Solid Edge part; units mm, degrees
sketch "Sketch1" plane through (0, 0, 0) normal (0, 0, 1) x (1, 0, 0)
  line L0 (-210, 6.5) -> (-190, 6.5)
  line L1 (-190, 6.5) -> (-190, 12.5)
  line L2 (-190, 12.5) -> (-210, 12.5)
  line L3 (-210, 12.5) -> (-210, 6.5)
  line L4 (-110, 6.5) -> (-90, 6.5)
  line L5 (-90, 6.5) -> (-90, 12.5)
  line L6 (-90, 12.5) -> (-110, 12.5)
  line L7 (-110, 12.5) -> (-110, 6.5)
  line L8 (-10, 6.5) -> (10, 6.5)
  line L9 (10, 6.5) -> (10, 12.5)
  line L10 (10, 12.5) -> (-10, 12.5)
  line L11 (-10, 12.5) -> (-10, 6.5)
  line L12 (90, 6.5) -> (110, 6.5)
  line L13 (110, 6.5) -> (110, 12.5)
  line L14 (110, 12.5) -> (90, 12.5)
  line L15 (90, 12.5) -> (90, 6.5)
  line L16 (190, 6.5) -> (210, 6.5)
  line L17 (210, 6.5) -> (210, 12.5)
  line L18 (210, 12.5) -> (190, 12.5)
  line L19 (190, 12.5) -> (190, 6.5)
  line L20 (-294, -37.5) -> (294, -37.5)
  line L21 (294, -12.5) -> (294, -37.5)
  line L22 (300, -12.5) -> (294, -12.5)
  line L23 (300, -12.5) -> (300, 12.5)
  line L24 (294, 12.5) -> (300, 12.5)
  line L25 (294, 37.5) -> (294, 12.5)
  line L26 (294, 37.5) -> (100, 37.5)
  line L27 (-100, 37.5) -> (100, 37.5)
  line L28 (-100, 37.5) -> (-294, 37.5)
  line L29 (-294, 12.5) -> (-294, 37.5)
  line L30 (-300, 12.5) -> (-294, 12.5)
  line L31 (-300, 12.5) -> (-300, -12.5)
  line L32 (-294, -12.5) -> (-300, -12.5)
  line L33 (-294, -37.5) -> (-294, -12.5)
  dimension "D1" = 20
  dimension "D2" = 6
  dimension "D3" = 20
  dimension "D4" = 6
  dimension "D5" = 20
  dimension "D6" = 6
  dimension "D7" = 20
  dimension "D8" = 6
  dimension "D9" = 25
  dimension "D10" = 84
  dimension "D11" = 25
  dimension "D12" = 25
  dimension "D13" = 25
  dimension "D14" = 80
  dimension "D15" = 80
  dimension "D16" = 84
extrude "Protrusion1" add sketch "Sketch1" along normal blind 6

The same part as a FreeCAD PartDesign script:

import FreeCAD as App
import Part
import Sketcher
from FreeCAD import Vector

doc = App.newDocument("Part")
body = doc.addObject("PartDesign::Body", "Body")

# Sketch on XY plane
sketch1 = body.newObject("Sketcher::SketchObject", "Sketch")
sketch1.AttachmentSupport = (doc.getObject("XY_Plane"), [""])
sketch1.MapMode = "FlatFace"
sketch1.addGeometry([
    Part.LineSegment(Vector(-294, -12.5, 0), Vector(-294, -37.5, 0)),  # 0
    Part.LineSegment(Vector(-294, -37.5, 0), Vector(294, -37.5, 0)),  # 1
    Part.LineSegment(Vector(294, -37.5, 0), Vector(294, -12.5, 0)),  # 2
    Part.LineSegment(Vector(294, -12.5, 0), Vector(300, -12.5, 0)),  # 3
    Part.LineSegment(Vector(300, -12.5, 0), Vector(300, 12.5, 0)),  # 4
    Part.LineSegment(Vector(300, 12.5, 0), Vector(294, 12.5, 0)),  # 5
    Part.LineSegment(Vector(294, 12.5, 0), Vector(294, 37.5, 0)),  # 6
    Part.LineSegment(Vector(294, 37.5, 0), Vector(-294, 37.5, 0)),  # 7
    Part.LineSegment(Vector(-294, 37.5, 0), Vector(-294, 12.5, 0)),  # 8
    Part.LineSegment(Vector(-294, 12.5, 0), Vector(-300, 12.5, 0)),  # 9
    Part.LineSegment(Vector(-300, 12.5, 0), Vector(-300, -12.5, 0)),  # 10
    Part.LineSegment(Vector(-300, -12.5, 0), Vector(-294, -12.5, 0)),  # 11
    Part.LineSegment(Vector(-190, 6.5, 0), Vector(-210, 6.5, 0)),  # 12
    Part.LineSegment(Vector(-210, 6.5, 0), Vector(-210, 12.5, 0)),  # 13
    Part.LineSegment(Vector(-210, 12.5, 0), Vector(-190, 12.5, 0)),  # 14
    Part.LineSegment(Vector(-190, 12.5, 0), Vector(-190, 6.5, 0)),  # 15
    Part.LineSegment(Vector(-90, 6.5, 0), Vector(-110, 6.5, 0)),  # 16
    Part.LineSegment(Vector(-110, 6.5, 0), Vector(-110, 12.5, 0)),  # 17
    Part.LineSegment(Vector(-110, 12.5, 0), Vector(-90, 12.5, 0)),  # 18
    Part.LineSegment(Vector(-90, 12.5, 0), Vector(-90, 6.5, 0)),  # 19
    Part.LineSegment(Vector(10, 6.5, 0), Vector(-10, 6.5, 0)),  # 20
    Part.LineSegment(Vector(-10, 6.5, 0), Vector(-10, 12.5, 0)),  # 21
    Part.LineSegment(Vector(-10, 12.5, 0), Vector(10, 12.5, 0)),  # 22
    Part.LineSegment(Vector(10, 12.5, 0), Vector(10, 6.5, 0)),  # 23
    Part.LineSegment(Vector(110, 6.5, 0), Vector(90, 6.5, 0)),  # 24
    Part.LineSegment(Vector(90, 6.5, 0), Vector(90, 12.5, 0)),  # 25
    Part.LineSegment(Vector(90, 12.5, 0), Vector(110, 12.5, 0)),  # 26
    Part.LineSegment(Vector(110, 12.5, 0), Vector(110, 6.5, 0)),  # 27
    Part.LineSegment(Vector(210, 6.5, 0), Vector(190, 6.5, 0)),  # 28
    Part.LineSegment(Vector(190, 6.5, 0), Vector(190, 12.5, 0)),  # 29
    Part.LineSegment(Vector(190, 12.5, 0), Vector(210, 12.5, 0)),  # 30
    Part.LineSegment(Vector(210, 12.5, 0), Vector(210, 6.5, 0)),  # 31
], False)
sketch1.addConstraint([
    Sketcher.Constraint("Coincident", 0, 2, 1, 1),
    Sketcher.Constraint("Coincident", 1, 2, 2, 1),
    Sketcher.Constraint("Coincident", 2, 2, 3, 1),
    Sketcher.Constraint("Coincident", 3, 2, 4, 1),
    Sketcher.Constraint("Coincident", 4, 2, 5, 1),
    Sketcher.Constraint("Coincident", 5, 2, 6, 1),
    Sketcher.Constraint("Coincident", 6, 2, 7, 1),
    Sketcher.Constraint("Coincident", 7, 2, 8, 1),
    Sketcher.Constraint("Coincident", 8, 2, 9, 1),
    Sketcher.Constraint("Coincident", 9, 2, 10, 1),
    Sketcher.Constraint("Coincident", 10, 2, 11, 1),
    Sketcher.Constraint("Coincident", 11, 2, 0, 1),
    Sketcher.Constraint("Coincident", 12, 2, 13, 1),
    Sketcher.Constraint("Coincident", 13, 2, 14, 1),
    Sketcher.Constraint("Coincident", 14, 2, 15, 1),
    Sketcher.Constraint("Coincident", 15, 2, 12, 1),
    Sketcher.Constraint("Coincident", 16, 2, 17, 1),
    Sketcher.Constraint("Coincident", 17, 2, 18, 1),
    Sketcher.Constraint("Coincident", 18, 2, 19, 1),
    Sketcher.Constraint("Coincident", 19, 2, 16, 1),
    Sketcher.Constraint("Coincident", 20, 2, 21, 1),
    Sketcher.Constraint("Coincident", 21, 2, 22, 1),
    Sketcher.Constraint("Coincident", 22, 2, 23, 1),
    Sketcher.Constraint("Coincident", 23, 2, 20, 1),
    Sketcher.Constraint("Coincident", 24, 2, 25, 1),
    Sketcher.Constraint("Coincident", 25, 2, 26, 1),
    Sketcher.Constraint("Coincident", 26, 2, 27, 1),
    Sketcher.Constraint("Coincident", 27, 2, 24, 1),
    Sketcher.Constraint("Coincident", 28, 2, 29, 1),
    Sketcher.Constraint("Coincident", 29, 2, 30, 1),
    Sketcher.Constraint("Coincident", 30, 2, 31, 1),
    Sketcher.Constraint("Coincident", 31, 2, 28, 1),
    Sketcher.Constraint("Vertical", 0),
    Sketcher.Constraint("Horizontal", 1),
    Sketcher.Constraint("Vertical", 2),
    Sketcher.Constraint("Horizontal", 3),
    Sketcher.Constraint("Vertical", 4),
    Sketcher.Constraint("Horizontal", 5),
    Sketcher.Constraint("Vertical", 6),
    Sketcher.Constraint("Horizontal", 7),
    Sketcher.Constraint("Vertical", 8),
    Sketcher.Constraint("Horizontal", 9),
    Sketcher.Constraint("Vertical", 10),
    Sketcher.Constraint("Horizontal", 11),
    Sketcher.Constraint("Horizontal", 12),
    Sketcher.Constraint("Vertical", 13),
    Sketcher.Constraint("Horizontal", 14),
    Sketcher.Constraint("Vertical", 15),
    Sketcher.Constraint("Horizontal", 16),
    Sketcher.Constraint("Vertical", 17),
    Sketcher.Constraint("Horizontal", 18),
    Sketcher.Constraint("Vertical", 19),
    Sketcher.Constraint("Horizontal", 20),
    Sketcher.Constraint("Vertical", 21),
    Sketcher.Constraint("Horizontal", 22),
    Sketcher.Constraint("Vertical", 23),
    Sketcher.Constraint("Horizontal", 24),
    Sketcher.Constraint("Vertical", 25),
    Sketcher.Constraint("Horizontal", 26),
    Sketcher.Constraint("Vertical", 27),
    Sketcher.Constraint("Horizontal", 28),
    Sketcher.Constraint("Vertical", 29),
    Sketcher.Constraint("Horizontal", 30),
    Sketcher.Constraint("Vertical", 31),
    Sketcher.Constraint("Symmetric", 0, 2, 6, 2, -1, 1),
    Sketcher.Constraint("Symmetric", 2, 2, 8, 2, -1, 1),
    Sketcher.Constraint("Symmetric", 4, 2, 10, 2, -1, 1),
    Sketcher.Constraint("Symmetric", 5, 2, 8, 2, -2),
    Sketcher.Constraint("Symmetric", 19, 2, 24, 2, -2),
    Sketcher.Constraint("Symmetric", 17, 2, 26, 2, -2),
    Sketcher.Constraint("Symmetric", 15, 2, 28, 2, -2),
    Sketcher.Constraint("Symmetric", 13, 2, 30, 2, -2),
    Sketcher.Constraint("Horizontal", 9, 2, 13, 2),
    Sketcher.Constraint("Horizontal", 15, 2, 16, 2),
    Sketcher.Constraint("Horizontal", 14, 2, 17, 2),
    Sketcher.Constraint("Horizontal", 19, 2, 20, 2),
    Sketcher.Constraint("Horizontal", 18, 2, 21, 2),
    Sketcher.Constraint("Equal", 14, 16),
    Sketcher.Constraint("Equal", 18, 20),
    Sketcher.Constraint("Equal", 2, 4),
    Sketcher.Constraint("Equal", 11, 13),
    Sketcher.Constraint("DistanceX", 12, 2, -1, 1, 210.0),
    Sketcher.Constraint("DistanceX", 14, 2, -1, 1, 190.0),
    Sketcher.Constraint("DistanceX", 16, 2, -1, 1, 110.0),
    Sketcher.Constraint("DistanceX", 9, 2, 12, 2, 90.0),
    Sketcher.Constraint("DistanceX", 1, 1, 1, 2, 588.0),
    Sketcher.Constraint("DistanceY", 0, 2, 0, 1, 25.0),
    Sketcher.Constraint("DistanceX", 20, 2, -1, 1, 10.0),
])
pad1 = body.newObject("PartDesign::Pad", "Pad")
pad1.Profile = sketch1
pad1.Length = 6

doc.recompute()
